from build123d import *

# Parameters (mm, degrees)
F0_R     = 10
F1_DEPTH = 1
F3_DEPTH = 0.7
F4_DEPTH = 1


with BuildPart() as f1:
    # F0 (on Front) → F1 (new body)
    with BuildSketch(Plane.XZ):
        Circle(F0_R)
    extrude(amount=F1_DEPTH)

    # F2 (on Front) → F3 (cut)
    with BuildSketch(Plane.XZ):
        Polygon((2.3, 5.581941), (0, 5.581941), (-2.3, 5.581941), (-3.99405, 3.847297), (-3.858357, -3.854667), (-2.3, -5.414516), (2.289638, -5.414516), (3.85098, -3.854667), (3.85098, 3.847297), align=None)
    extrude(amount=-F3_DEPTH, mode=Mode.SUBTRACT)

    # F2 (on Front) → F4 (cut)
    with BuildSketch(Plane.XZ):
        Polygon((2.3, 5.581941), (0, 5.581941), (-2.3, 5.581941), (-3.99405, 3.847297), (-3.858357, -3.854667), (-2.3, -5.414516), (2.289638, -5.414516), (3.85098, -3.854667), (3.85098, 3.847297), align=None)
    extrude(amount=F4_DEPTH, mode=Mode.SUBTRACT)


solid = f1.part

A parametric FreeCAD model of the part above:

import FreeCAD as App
import Part
import Sketcher

doc = App.newDocument("Part")
params = doc.addObject("Spreadsheet::Sheet", "Params")
for row, (alias, value) in enumerate([
    ("sketch1_diameter", "20 mm"),
    ("pad1_length", "1 mm"),
    ("sketch2_width", "4.6 mm"),
    ("pocket1_length", "0.7 mm"),
    ("sketch3_width", "4.6 mm"),
    ("pocket2_length", "1 mm"),
], start=1):
    params.set(f"A{row}", alias)
    params.set(f"B{row}", "=" + value)
    params.setAlias(f"B{row}", alias)

body = doc.addObject("PartDesign::Body", "Body")

# Sketch on XZ plane
sketch1 = body.newObject("Sketcher::SketchObject", "Sketch")
sketch1.AttachmentSupport = (doc.getObject("XZ_Plane"), [""])
sketch1.MapMode = "FlatFace"
sketch1.addGeometry(Part.Circle(App.Vector(0, 0, 0), App.Vector(0, 0, 1), 10), False)
sketch1.addConstraint([
    Sketcher.Constraint("Coincident", 0, 3, -1, 1),
    Sketcher.Constraint("Diameter", 0, 20.0),
])
sketch1.setExpression("Constraints[1]", "Params.sketch1_diameter")
pad1 = body.newObject("PartDesign::Pad", "Pad")
pad1.Profile = sketch1
pad1.setExpression("Length", "Params.pad1_length")

# Sketch on XZ plane
sketch2 = body.newObject("Sketcher::SketchObject", "Sketch001")
sketch2.AttachmentSupport = (doc.getObject("XZ_Plane"), [""])
sketch2.MapMode = "FlatFace"
sketch2.addGeometry([
    Part.LineSegment(App.Vector(2.3, 5.6, 0), App.Vector(-2.3, 5.6, 0)),  # 0
    Part.LineSegment(App.Vector(-2.3, 5.6, 0), App.Vector(-4, 3.8, 0)),  # 1
    Part.LineSegment(App.Vector(-4, 3.8, 0), App.Vector(-3.9, -3.9, 0)),  # 2
    Part.LineSegment(App.Vector(-3.9, -3.9, 0), App.Vector(-2.3, -5.4, 0)),  # 3
    Part.LineSegment(App.Vector(-2.3, -5.4, 0), App.Vector(2.3, -5.4, 0)),  # 4
    Part.LineSegment(App.Vector(2.3, -5.4, 0), App.Vector(3.9, -3.9, 0)),  # 5
    Part.LineSegment(App.Vector(3.9, -3.9, 0), App.Vector(3.9, 3.8, 0)),  # 6
    Part.LineSegment(App.Vector(3.9, 3.8, 0), App.Vector(2.3, 5.6, 0)),  # 7
], False)
sketch2.addConstraint([
    Sketcher.Constraint("Coincident", 0, 2, 1, 1),
    Sketcher.Constraint("Coincident", 1, 2, 2, 1),
    Sketcher.Constraint("Coincident", 2, 2, 3, 1),
    Sketcher.Constraint("Coincident", 3, 2, 4, 1),
    Sketcher.Constraint("Coincident", 4, 2, 5, 1),
    Sketcher.Constraint("Coincident", 5, 2, 6, 1),
    Sketcher.Constraint("Coincident", 6, 2, 7, 1),
    Sketcher.Constraint("Coincident", 7, 2, 0, 1),
    Sketcher.Constraint("Horizontal", 0),
    Sketcher.Constraint("Horizontal", 4),
    Sketcher.Constraint("Vertical", 6),
    Sketcher.Constraint("Perpendicular", 3, 5),
    Sketcher.Constraint("Horizontal", 2, 2, 5, 2),
    Sketcher.Constraint("Horizontal", 1, 2, 6, 2),
    Sketcher.Constraint("Vertical", 0, 2, 3, 2),
    Sketcher.Constraint("DistanceX", 0, 2, 0, 1, 4.6),
    Sketcher.Constraint("DistanceX", 0, 2, -1, 1, 2.3),
    Sketcher.Constraint("Distance", 2, 7.703159),
    Sketcher.Constraint("DistanceX", 4, 1, 4, 2, 4.589638),
    Sketcher.Constraint("DistanceY", 6, 1, 6, 2, 7.701964),
    Sketcher.Constraint("DistanceY", -1, 1, 0, 2, 5.581941),
    Sketcher.Constraint("DistanceX", 1, 2, -1, 1, 3.99405),
    Sketcher.Constraint("DistanceX", -1, 1, 5, 2, 3.85098),
    Sketcher.Constraint("Distance", 1, 2.424623),
])
sketch2.setExpression("Constraints[15]", "Params.sketch2_width")
pocket1 = body.newObject("PartDesign::Pocket", "Pocket")
pocket1.Profile = sketch2
pocket1.setExpression("Length", "Params.pocket1_length")

# Sketch on XZ plane
sketch3 = body.newObject("Sketcher::SketchObject", "Sketch002")
sketch3.AttachmentSupport = (doc.getObject("XZ_Plane"), [""])
sketch3.MapMode = "FlatFace"
sketch3.addGeometry([
    Part.LineSegment(App.Vector(2.3, 5.6, 0), App.Vector(-2.3, 5.6, 0)),  # 0
    Part.LineSegment(App.Vector(-2.3, 5.6, 0), App.Vector(-4, 3.8, 0)),  # 1
    Part.LineSegment(App.Vector(-4, 3.8, 0), App.Vector(-3.9, -3.9, 0)),  # 2
    Part.LineSegment(App.Vector(-3.9, -3.9, 0), App.Vector(-2.3, -5.4, 0)),  # 3
    Part.LineSegment(App.Vector(-2.3, -5.4, 0), App.Vector(2.3, -5.4, 0)),  # 4
    Part.LineSegment(App.Vector(2.3, -5.4, 0), App.Vector(3.9, -3.9, 0)),  # 5
    Part.LineSegment(App.Vector(3.9, -3.9, 0), App.Vector(3.9, 3.8, 0)),  # 6
    Part.LineSegment(App.Vector(3.9, 3.8, 0), App.Vector(2.3, 5.6, 0)),  # 7
], False)
sketch3.addConstraint([
    Sketcher.Constraint("Coincident", 0, 2, 1, 1),
    Sketcher.Constraint("Coincident", 1, 2, 2, 1),
    Sketcher.Constraint("Coincident", 2, 2, 3, 1),
    Sketcher.Constraint("Coincident", 3, 2, 4, 1),
    Sketcher.Constraint("Coincident", 4, 2, 5, 1),
    Sketcher.Constraint("Coincident", 5, 2, 6, 1),
    Sketcher.Constraint("Coincident", 6, 2, 7, 1),
    Sketcher.Constraint("Coincident", 7, 2, 0, 1),
    Sketcher.Constraint("Horizontal", 0),
    Sketcher.Constraint("Horizontal", 4),
    Sketcher.Constraint("Vertical", 6),
    Sketcher.Constraint("Perpendicular", 3, 5),
    Sketcher.Constraint("Horizontal", 2, 2, 5, 2),
    Sketcher.Constraint("Horizontal", 1, 2, 6, 2),
    Sketcher.Constraint("Vertical", 0, 2, 3, 2),
    Sketcher.Constraint("DistanceX", 0, 2, 0, 1, 4.6),
    Sketcher.Constraint("DistanceX", 0, 2, -1, 1, 2.3),
    Sketcher.Constraint("Distance", 2, 7.703159),
    Sketcher.Constraint("DistanceX", 4, 1, 4, 2, 4.589638),
    Sketcher.Constraint("DistanceY", 6, 1, 6, 2, 7.701964),
    Sketcher.Constraint("DistanceY", -1, 1, 0, 2, 5.581941),
    Sketcher.Constraint("DistanceX", 1, 2, -1, 1, 3.99405),
    Sketcher.Constraint("DistanceX", -1, 1, 5, 2, 3.85098),
    Sketcher.Constraint("Distance", 1, 2.424623),
])
sketch3.setExpression("Constraints[15]", "Params.sketch3_width")
pocket2 = body.newObject("PartDesign::Pocket", "Pocket001")
pocket2.Profile = sketch3
pocket2.setExpression("Length", "Params.pocket2_length")
pocket2.Reversed = True

doc.recompute()
